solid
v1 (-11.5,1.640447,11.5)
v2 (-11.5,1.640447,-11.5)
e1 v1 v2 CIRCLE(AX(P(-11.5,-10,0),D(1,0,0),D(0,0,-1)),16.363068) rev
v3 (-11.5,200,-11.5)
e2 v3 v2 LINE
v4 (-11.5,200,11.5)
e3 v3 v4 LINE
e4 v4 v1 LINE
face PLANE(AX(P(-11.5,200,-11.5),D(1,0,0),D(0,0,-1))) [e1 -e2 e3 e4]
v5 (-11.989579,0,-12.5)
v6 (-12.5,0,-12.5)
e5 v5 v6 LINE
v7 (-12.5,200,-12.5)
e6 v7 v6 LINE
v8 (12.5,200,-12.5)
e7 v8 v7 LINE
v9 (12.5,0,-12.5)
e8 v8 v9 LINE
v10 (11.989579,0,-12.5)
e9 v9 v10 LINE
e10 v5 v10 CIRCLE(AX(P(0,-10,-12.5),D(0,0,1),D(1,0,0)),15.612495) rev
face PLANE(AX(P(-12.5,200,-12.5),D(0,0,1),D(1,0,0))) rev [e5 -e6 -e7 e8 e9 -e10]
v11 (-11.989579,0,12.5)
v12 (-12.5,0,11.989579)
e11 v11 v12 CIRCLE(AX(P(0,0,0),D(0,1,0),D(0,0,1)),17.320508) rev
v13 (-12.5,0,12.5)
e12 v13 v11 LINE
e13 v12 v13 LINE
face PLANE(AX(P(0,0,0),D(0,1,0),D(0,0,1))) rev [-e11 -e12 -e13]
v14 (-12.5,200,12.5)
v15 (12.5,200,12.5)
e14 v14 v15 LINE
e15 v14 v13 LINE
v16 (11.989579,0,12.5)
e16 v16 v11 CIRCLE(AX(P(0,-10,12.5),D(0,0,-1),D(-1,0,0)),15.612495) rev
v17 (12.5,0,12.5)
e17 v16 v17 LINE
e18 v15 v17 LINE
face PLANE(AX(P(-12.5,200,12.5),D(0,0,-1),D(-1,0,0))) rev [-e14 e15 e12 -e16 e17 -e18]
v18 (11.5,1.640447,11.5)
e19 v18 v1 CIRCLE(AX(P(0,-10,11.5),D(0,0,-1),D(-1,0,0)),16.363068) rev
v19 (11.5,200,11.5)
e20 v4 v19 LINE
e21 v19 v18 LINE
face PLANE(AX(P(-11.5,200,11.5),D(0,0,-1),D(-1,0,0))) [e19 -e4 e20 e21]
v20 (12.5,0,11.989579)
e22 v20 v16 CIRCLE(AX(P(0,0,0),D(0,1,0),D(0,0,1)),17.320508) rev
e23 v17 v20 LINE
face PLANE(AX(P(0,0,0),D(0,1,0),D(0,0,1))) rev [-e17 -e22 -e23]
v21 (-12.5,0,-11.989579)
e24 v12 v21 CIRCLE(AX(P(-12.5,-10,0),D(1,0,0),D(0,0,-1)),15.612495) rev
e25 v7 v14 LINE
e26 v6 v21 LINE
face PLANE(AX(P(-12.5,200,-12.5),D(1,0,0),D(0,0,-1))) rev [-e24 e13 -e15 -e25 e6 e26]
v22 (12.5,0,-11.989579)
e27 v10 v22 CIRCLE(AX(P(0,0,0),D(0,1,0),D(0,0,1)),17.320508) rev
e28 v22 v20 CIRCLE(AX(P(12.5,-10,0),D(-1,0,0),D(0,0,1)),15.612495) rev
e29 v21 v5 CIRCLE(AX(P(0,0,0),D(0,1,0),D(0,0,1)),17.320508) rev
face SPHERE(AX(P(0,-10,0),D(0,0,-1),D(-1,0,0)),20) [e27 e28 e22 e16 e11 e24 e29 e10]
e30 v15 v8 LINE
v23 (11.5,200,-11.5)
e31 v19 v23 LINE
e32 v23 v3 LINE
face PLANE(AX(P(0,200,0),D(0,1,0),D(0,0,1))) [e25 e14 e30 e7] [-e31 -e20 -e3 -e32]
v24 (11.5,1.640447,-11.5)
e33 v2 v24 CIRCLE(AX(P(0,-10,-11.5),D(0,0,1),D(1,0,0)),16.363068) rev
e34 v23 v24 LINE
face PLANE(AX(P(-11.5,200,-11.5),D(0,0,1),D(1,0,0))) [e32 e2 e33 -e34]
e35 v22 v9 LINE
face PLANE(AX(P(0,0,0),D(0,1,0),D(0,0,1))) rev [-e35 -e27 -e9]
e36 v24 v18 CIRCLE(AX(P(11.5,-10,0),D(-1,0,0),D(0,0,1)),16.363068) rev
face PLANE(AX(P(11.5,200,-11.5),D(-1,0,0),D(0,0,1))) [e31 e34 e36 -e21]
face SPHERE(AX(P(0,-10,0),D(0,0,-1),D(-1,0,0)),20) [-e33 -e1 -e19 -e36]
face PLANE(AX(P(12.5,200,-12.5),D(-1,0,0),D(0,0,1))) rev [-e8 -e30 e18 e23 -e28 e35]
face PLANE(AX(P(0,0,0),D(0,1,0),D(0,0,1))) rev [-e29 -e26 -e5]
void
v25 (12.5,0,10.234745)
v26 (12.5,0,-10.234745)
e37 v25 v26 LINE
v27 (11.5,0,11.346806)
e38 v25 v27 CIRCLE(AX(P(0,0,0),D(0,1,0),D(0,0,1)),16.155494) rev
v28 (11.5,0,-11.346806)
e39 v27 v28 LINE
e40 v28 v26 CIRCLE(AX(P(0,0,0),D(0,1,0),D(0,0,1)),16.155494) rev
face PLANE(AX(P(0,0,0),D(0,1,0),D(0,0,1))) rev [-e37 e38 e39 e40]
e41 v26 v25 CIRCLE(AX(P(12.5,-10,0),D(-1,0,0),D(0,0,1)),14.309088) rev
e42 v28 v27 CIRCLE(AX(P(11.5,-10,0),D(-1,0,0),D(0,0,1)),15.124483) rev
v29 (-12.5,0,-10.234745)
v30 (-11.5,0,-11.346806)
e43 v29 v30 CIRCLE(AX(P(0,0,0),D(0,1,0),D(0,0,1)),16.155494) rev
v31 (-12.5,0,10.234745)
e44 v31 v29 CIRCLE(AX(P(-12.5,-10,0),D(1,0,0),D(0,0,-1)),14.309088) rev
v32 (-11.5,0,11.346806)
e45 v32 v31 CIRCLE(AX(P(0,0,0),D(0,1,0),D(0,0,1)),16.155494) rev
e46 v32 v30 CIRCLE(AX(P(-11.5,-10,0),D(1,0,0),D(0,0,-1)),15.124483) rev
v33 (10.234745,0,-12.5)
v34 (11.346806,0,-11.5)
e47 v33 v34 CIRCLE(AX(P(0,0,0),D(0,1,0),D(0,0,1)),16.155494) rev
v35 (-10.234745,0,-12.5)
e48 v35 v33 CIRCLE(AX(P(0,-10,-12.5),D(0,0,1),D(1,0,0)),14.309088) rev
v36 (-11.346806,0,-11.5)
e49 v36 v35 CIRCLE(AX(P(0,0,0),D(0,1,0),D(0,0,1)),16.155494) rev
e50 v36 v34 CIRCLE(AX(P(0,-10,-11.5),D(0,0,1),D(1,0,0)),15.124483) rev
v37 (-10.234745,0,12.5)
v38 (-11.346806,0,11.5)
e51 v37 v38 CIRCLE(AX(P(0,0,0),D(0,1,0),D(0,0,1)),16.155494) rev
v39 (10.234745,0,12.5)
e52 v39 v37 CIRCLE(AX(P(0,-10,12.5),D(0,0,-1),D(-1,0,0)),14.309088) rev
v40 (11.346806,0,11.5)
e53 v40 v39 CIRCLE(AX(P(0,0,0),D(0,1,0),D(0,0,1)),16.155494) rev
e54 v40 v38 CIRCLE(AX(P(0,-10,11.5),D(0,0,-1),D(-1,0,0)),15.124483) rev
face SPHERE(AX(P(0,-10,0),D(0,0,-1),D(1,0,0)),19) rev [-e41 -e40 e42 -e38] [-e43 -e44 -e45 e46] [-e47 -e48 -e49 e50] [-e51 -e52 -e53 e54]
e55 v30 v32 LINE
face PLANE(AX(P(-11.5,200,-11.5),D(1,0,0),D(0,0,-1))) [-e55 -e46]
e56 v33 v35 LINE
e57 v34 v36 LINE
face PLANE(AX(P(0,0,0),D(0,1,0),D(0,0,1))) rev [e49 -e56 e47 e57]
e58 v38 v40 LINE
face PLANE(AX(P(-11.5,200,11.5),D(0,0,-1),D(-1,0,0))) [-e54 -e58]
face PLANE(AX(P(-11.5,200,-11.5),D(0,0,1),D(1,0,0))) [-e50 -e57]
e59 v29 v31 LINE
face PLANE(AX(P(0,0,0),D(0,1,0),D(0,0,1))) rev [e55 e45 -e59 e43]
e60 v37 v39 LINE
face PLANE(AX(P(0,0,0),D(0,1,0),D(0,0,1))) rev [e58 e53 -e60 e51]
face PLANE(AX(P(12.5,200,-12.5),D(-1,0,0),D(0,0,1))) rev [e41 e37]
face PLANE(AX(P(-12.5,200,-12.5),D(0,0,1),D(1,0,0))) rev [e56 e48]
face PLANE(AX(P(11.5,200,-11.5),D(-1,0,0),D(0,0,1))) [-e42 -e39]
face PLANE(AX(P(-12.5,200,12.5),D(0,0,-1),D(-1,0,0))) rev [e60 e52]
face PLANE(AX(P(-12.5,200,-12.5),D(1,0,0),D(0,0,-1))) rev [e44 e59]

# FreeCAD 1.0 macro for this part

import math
import FreeCAD as App
import Part
import Sketcher
Q = App.Units.Quantity

doc = App.newDocument("Part")
body = doc.addObject("PartDesign::Body", "Body")

# Sketch on XZ plane
sketch1 = body.newObject("Sketcher::SketchObject", "Sketch")
sketch1.AttachmentSupport = (doc.getObject("XZ_Plane"), [""])
sketch1.MapMode = "FlatFace"
sketch1.addGeometry(Part.LineSegment(App.Vector(-12, -12, 0), App.Vector(-12, 12, 0)), False)
sketch1.addGeometry(Part.LineSegment(App.Vector(-12, 12, 0), App.Vector(12, 12, 0)), False)
sketch1.addGeometry(Part.LineSegment(App.Vector(12, 12, 0), App.Vector(12, -12, 0)), False)
sketch1.addGeometry(Part.LineSegment(App.Vector(12, -12, 0), App.Vector(-12, -12, 0)), False)
sketch1.addGeometry(Part.LineSegment(App.Vector(12, 12, 0), App.Vector(-12, 12, 0)), False)
sketch1.addGeometry(Part.LineSegment(App.Vector(-12, 12, 0), App.Vector(-12, -12, 0)), False)
sketch1.addGeometry(Part.LineSegment(App.Vector(-12, -12, 0), App.Vector(12, -12, 0)), False)
sketch1.addGeometry(Part.LineSegment(App.Vector(12, -12, 0), App.Vector(12, 12, 0)), False)
sketch1.addConstraint(Sketcher.Constraint("Coincident", 0, 2, 1, 1))
sketch1.addConstraint(Sketcher.Constraint("Coincident", 1, 2, 2, 1))
sketch1.addConstraint(Sketcher.Constraint("Coincident", 2, 2, 3, 1))
sketch1.addConstraint(Sketcher.Constraint("Coincident", 3, 2, 0, 1))
sketch1.addConstraint(Sketcher.Constraint("Coincident", 4, 2, 5, 1))
sketch1.addConstraint(Sketcher.Constraint("Coincident", 5, 2, 6, 1))
sketch1.addConstraint(Sketcher.Constraint("Coincident", 6, 2, 7, 1))
sketch1.addConstraint(Sketcher.Constraint("Coincident", 7, 2, 4, 1))
sketch1.addConstraint(Sketcher.Constraint("Vertical", 0))
sketch1.addConstraint(Sketcher.Constraint("Horizontal", 1))
sketch1.addConstraint(Sketcher.Constraint("Vertical", 2))
sketch1.addConstraint(Sketcher.Constraint("Horizontal", 3))
sketch1.addConstraint(Sketcher.Constraint("Horizontal", 4))
sketch1.addConstraint(Sketcher.Constraint("Vertical", 5))
sketch1.addConstraint(Sketcher.Constraint("Horizontal", 6))
sketch1.addConstraint(Sketcher.Constraint("Vertical", 7))
sketch1.addConstraint(Sketcher.Constraint("Symmetric", 0, 2, 2, 2, -1, 1))
sketch1.addConstraint(Sketcher.Constraint("Symmetric", 4, 2, 6, 2, -1, 1))
sketch1.addConstraint(Sketcher.Constraint("Equal", 3, 0))
sketch1.addConstraint(Sketcher.Constraint("Equal", 6, 5))
sketch1.addConstraint(Sketcher.Constraint("DistanceX", 1, 1, 1, 2, Q("25 mm")))
sketch1.addConstraint(Sketcher.Constraint("DistanceX", 4, 2, 4, 1, Q("23 mm")))
pad1 = body.newObject("PartDesign::Pad", "Pad")
pad1.Profile = sketch1
pad1.Length = 200
pad1.Reversed = True

# Sketch on XZ plane
sketch2 = body.newObject("Sketcher::SketchObject", "Sketch001")
sketch2.AttachmentSupport = (doc.getObject("XZ_Plane"), [""])
sketch2.MapMode = "FlatFace"
sketch2.AttachmentOffset = App.Placement(App.Vector(0, 0, 10), App.Rotation())
sketch2.addGeometry(Part.LineSegment(App.Vector(0, -19, 0), App.Vector(0, -20, 0)), False)
sketch2.addGeometry(Part.ArcOfCircle(Part.Circle(App.Vector(0, 0, 0), App.Vector(0, 0, 1), 20), math.radians(-90), math.radians(90)), False)
sketch2.addGeometry(Part.LineSegment(App.Vector(0, 20, 0), App.Vector(0, 19, 0)), False)
sketch2.addGeometry(Part.ArcOfCircle(Part.Circle(App.Vector(0, 0, 0), App.Vector(0, 0, 1), 19), math.radians(-90), math.radians(90)), False)
sketch2.addConstraint(Sketcher.Constraint("Coincident", 0, 2, 1, 1))
sketch2.addConstraint(Sketcher.Constraint("Coincident", 1, 2, 2, 1))
sketch2.addConstraint(Sketcher.Constraint("Coincident", 2, 2, 3, 2))
sketch2.addConstraint(Sketcher.Constraint("Coincident", 3, 1, 0, 1))
sketch2.addConstraint(Sketcher.Constraint("Vertical", 0))
sketch2.addConstraint(Sketcher.Constraint("Vertical", 2))
sketch2.addConstraint(Sketcher.Constraint("Coincident", 1, 3, -1, 1))
sketch2.addConstraint(Sketcher.Constraint("Coincident", 3, 3, -1, 1))
sketch2.addConstraint(Sketcher.Constraint("PointOnObject", 0, 2, -2))
sketch2.addConstraint(Sketcher.Constraint("PointOnObject", 1, 2, -2))
sketch2.addConstraint(Sketcher.Constraint("Radius", 1, Q("20 mm")))
sketch2.addConstraint(Sketcher.Constraint("Radius", 3, Q("19 mm")))
revolution = body.newObject("PartDesign::Revolution", "Revolution")
revolution.Profile = sketch2
revolution.ReferenceAxis = (sketch2, ["V_Axis"])
revolution.Angle = 360

doc.recompute()
